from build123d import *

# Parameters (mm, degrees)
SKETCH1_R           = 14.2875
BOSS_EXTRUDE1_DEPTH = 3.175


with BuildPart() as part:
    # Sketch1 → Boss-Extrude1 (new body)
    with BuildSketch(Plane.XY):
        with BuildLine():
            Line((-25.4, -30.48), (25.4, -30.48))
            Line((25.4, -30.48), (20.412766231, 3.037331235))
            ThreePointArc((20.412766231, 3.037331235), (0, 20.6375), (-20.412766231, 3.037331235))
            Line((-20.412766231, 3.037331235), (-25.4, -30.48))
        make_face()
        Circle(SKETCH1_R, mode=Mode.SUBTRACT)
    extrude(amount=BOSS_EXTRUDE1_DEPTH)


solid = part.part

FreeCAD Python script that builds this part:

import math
import FreeCAD as App
import Part
import Sketcher
from FreeCAD import Vector
Q = App.Units.Quantity

doc = App.newDocument("Part")
body = doc.addObject("PartDesign::Body", "Body")

# Sketch on XY plane
sketch1 = body.newObject("Sketcher::SketchObject", "Sketch")
sketch1.AttachmentSupport = (doc.getObject("XY_Plane"), [""])
sketch1.MapMode = "FlatFace"
sketch1.addGeometry(Part.LineSegment(Vector(-25, -30, 0), Vector(25, -30, 0)), False)
sketch1.addGeometry(Part.LineSegment(Vector(25, -30, 0), Vector(20, 3, 0)), False)
sketch1.addGeometry(Part.ArcOfCircle(Part.Circle(Vector(0, 0, 0), Vector(0, 0, 1), 21), math.radians(8), math.radians(172)), False)
sketch1.addGeometry(Part.LineSegment(Vector(-20, 3, 0), Vector(-25, -30, 0)), False)
sketch1.addGeometry(Part.Circle(Vector(0, 0, 0), Vector(0, 0, 1), 14), False)
sketch1.addConstraint(Sketcher.Constraint("Coincident", 0, 2, 1, 1))
sketch1.addConstraint(Sketcher.Constraint("Tangent", 1, 2, 2, 1))
sketch1.addConstraint(Sketcher.Constraint("Tangent", 2, 2, 3, 1))
sketch1.addConstraint(Sketcher.Constraint("Coincident", 3, 2, 0, 1))
sketch1.addConstraint(Sketcher.Constraint("Horizontal", 0))
sketch1.addConstraint(Sketcher.Constraint("Coincident", 2, 3, -1, 1))
sketch1.addConstraint(Sketcher.Constraint("Coincident", 4, 3, -1, 1))
sketch1.addConstraint(Sketcher.Constraint("Horizontal", 1, 2, 2, 2))
sketch1.addConstraint(Sketcher.Constraint("DistanceX", 0, 1, 0, 2, Q("2 in")))
sketch1.addConstraint(Sketcher.Constraint("Diameter", 4, Q("1.125 in")))
sketch1.addConstraint(Sketcher.Constraint("Radius", 2, Q("0.8125 in")))
sketch1.addConstraint(Sketcher.Constraint("DistanceY", 0, 2, -1, 1, Q("1.2 in")))
pad1 = body.newObject("PartDesign::Pad", "Pad")
pad1.Profile = sketch1
pad1.Length = Q("0.125 in")

doc.recompute()
